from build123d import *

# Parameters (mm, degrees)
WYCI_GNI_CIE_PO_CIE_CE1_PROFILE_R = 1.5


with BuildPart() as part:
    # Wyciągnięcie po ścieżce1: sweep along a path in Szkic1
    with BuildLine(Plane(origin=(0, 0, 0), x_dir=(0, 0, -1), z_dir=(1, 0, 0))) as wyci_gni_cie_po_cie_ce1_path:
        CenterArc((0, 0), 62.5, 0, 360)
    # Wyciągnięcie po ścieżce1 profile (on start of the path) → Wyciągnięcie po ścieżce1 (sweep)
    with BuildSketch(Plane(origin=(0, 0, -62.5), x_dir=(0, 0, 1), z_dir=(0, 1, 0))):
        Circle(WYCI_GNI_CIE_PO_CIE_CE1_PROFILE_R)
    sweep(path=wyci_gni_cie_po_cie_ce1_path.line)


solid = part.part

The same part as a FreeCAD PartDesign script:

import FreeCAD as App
import Part
import Sketcher
from FreeCAD import Vector
Q = App.Units.Quantity

doc = App.newDocument("Part")
params = doc.addObject("Spreadsheet::Sheet", "Params")
for row, (alias, value) in enumerate([
    ("sketch1_diameter", "3 mm"),
    ("sketch2_diameter", "125 mm"),
], start=1):
    params.set(f"A{row}", alias)
    params.set(f"B{row}", "=" + value)
    params.setAlias(f"B{row}", alias)

body = doc.addObject("PartDesign::Body", "Body")

# Sketch on XZ plane
sketch1 = body.newObject("Sketcher::SketchObject", "Sketch")
sketch1.AttachmentSupport = (doc.getObject("XZ_Plane"), [""])
sketch1.MapMode = "FlatFace"
sketch1.addGeometry(Part.Circle(Vector(0, -62.5, 0), Vector(0, 0, 1), 1.5), False)
sketch1.addConstraint([
    Sketcher.Constraint("PointOnObject", 0, 3, -2),
    Sketcher.Constraint("Diameter", 0, Q("3 mm")),
    Sketcher.Constraint("DistanceY", 0, 3, -1, 1, Q("62.5 mm")),
])
sketch1.setExpression("Constraints[1]", "Params.sketch1_diameter")

# Sketch on YZ plane
sketch2 = body.newObject("Sketcher::SketchObject", "Sketch001")
sketch2.AttachmentSupport = (doc.getObject("YZ_Plane"), [""])
sketch2.MapMode = "FlatFace"
sketch2.addGeometry(Part.Circle(Vector(0, 0, 0), Vector(0, 0, 1), 62), False)
sketch2.addConstraint([
    Sketcher.Constraint("Coincident", 0, 3, -1, 1),
    Sketcher.Constraint("Diameter", 0, Q("125 mm")),
])
sketch2.setExpression("Constraints[1]", "Params.sketch2_diameter")
doc.recompute()

additivepipe = body.newObject("PartDesign::AdditivePipe", "AdditivePipe")
additivepipe.Profile = sketch1
additivepipe.Spine = (sketch2, ["Edge1"])

doc.recompute()
